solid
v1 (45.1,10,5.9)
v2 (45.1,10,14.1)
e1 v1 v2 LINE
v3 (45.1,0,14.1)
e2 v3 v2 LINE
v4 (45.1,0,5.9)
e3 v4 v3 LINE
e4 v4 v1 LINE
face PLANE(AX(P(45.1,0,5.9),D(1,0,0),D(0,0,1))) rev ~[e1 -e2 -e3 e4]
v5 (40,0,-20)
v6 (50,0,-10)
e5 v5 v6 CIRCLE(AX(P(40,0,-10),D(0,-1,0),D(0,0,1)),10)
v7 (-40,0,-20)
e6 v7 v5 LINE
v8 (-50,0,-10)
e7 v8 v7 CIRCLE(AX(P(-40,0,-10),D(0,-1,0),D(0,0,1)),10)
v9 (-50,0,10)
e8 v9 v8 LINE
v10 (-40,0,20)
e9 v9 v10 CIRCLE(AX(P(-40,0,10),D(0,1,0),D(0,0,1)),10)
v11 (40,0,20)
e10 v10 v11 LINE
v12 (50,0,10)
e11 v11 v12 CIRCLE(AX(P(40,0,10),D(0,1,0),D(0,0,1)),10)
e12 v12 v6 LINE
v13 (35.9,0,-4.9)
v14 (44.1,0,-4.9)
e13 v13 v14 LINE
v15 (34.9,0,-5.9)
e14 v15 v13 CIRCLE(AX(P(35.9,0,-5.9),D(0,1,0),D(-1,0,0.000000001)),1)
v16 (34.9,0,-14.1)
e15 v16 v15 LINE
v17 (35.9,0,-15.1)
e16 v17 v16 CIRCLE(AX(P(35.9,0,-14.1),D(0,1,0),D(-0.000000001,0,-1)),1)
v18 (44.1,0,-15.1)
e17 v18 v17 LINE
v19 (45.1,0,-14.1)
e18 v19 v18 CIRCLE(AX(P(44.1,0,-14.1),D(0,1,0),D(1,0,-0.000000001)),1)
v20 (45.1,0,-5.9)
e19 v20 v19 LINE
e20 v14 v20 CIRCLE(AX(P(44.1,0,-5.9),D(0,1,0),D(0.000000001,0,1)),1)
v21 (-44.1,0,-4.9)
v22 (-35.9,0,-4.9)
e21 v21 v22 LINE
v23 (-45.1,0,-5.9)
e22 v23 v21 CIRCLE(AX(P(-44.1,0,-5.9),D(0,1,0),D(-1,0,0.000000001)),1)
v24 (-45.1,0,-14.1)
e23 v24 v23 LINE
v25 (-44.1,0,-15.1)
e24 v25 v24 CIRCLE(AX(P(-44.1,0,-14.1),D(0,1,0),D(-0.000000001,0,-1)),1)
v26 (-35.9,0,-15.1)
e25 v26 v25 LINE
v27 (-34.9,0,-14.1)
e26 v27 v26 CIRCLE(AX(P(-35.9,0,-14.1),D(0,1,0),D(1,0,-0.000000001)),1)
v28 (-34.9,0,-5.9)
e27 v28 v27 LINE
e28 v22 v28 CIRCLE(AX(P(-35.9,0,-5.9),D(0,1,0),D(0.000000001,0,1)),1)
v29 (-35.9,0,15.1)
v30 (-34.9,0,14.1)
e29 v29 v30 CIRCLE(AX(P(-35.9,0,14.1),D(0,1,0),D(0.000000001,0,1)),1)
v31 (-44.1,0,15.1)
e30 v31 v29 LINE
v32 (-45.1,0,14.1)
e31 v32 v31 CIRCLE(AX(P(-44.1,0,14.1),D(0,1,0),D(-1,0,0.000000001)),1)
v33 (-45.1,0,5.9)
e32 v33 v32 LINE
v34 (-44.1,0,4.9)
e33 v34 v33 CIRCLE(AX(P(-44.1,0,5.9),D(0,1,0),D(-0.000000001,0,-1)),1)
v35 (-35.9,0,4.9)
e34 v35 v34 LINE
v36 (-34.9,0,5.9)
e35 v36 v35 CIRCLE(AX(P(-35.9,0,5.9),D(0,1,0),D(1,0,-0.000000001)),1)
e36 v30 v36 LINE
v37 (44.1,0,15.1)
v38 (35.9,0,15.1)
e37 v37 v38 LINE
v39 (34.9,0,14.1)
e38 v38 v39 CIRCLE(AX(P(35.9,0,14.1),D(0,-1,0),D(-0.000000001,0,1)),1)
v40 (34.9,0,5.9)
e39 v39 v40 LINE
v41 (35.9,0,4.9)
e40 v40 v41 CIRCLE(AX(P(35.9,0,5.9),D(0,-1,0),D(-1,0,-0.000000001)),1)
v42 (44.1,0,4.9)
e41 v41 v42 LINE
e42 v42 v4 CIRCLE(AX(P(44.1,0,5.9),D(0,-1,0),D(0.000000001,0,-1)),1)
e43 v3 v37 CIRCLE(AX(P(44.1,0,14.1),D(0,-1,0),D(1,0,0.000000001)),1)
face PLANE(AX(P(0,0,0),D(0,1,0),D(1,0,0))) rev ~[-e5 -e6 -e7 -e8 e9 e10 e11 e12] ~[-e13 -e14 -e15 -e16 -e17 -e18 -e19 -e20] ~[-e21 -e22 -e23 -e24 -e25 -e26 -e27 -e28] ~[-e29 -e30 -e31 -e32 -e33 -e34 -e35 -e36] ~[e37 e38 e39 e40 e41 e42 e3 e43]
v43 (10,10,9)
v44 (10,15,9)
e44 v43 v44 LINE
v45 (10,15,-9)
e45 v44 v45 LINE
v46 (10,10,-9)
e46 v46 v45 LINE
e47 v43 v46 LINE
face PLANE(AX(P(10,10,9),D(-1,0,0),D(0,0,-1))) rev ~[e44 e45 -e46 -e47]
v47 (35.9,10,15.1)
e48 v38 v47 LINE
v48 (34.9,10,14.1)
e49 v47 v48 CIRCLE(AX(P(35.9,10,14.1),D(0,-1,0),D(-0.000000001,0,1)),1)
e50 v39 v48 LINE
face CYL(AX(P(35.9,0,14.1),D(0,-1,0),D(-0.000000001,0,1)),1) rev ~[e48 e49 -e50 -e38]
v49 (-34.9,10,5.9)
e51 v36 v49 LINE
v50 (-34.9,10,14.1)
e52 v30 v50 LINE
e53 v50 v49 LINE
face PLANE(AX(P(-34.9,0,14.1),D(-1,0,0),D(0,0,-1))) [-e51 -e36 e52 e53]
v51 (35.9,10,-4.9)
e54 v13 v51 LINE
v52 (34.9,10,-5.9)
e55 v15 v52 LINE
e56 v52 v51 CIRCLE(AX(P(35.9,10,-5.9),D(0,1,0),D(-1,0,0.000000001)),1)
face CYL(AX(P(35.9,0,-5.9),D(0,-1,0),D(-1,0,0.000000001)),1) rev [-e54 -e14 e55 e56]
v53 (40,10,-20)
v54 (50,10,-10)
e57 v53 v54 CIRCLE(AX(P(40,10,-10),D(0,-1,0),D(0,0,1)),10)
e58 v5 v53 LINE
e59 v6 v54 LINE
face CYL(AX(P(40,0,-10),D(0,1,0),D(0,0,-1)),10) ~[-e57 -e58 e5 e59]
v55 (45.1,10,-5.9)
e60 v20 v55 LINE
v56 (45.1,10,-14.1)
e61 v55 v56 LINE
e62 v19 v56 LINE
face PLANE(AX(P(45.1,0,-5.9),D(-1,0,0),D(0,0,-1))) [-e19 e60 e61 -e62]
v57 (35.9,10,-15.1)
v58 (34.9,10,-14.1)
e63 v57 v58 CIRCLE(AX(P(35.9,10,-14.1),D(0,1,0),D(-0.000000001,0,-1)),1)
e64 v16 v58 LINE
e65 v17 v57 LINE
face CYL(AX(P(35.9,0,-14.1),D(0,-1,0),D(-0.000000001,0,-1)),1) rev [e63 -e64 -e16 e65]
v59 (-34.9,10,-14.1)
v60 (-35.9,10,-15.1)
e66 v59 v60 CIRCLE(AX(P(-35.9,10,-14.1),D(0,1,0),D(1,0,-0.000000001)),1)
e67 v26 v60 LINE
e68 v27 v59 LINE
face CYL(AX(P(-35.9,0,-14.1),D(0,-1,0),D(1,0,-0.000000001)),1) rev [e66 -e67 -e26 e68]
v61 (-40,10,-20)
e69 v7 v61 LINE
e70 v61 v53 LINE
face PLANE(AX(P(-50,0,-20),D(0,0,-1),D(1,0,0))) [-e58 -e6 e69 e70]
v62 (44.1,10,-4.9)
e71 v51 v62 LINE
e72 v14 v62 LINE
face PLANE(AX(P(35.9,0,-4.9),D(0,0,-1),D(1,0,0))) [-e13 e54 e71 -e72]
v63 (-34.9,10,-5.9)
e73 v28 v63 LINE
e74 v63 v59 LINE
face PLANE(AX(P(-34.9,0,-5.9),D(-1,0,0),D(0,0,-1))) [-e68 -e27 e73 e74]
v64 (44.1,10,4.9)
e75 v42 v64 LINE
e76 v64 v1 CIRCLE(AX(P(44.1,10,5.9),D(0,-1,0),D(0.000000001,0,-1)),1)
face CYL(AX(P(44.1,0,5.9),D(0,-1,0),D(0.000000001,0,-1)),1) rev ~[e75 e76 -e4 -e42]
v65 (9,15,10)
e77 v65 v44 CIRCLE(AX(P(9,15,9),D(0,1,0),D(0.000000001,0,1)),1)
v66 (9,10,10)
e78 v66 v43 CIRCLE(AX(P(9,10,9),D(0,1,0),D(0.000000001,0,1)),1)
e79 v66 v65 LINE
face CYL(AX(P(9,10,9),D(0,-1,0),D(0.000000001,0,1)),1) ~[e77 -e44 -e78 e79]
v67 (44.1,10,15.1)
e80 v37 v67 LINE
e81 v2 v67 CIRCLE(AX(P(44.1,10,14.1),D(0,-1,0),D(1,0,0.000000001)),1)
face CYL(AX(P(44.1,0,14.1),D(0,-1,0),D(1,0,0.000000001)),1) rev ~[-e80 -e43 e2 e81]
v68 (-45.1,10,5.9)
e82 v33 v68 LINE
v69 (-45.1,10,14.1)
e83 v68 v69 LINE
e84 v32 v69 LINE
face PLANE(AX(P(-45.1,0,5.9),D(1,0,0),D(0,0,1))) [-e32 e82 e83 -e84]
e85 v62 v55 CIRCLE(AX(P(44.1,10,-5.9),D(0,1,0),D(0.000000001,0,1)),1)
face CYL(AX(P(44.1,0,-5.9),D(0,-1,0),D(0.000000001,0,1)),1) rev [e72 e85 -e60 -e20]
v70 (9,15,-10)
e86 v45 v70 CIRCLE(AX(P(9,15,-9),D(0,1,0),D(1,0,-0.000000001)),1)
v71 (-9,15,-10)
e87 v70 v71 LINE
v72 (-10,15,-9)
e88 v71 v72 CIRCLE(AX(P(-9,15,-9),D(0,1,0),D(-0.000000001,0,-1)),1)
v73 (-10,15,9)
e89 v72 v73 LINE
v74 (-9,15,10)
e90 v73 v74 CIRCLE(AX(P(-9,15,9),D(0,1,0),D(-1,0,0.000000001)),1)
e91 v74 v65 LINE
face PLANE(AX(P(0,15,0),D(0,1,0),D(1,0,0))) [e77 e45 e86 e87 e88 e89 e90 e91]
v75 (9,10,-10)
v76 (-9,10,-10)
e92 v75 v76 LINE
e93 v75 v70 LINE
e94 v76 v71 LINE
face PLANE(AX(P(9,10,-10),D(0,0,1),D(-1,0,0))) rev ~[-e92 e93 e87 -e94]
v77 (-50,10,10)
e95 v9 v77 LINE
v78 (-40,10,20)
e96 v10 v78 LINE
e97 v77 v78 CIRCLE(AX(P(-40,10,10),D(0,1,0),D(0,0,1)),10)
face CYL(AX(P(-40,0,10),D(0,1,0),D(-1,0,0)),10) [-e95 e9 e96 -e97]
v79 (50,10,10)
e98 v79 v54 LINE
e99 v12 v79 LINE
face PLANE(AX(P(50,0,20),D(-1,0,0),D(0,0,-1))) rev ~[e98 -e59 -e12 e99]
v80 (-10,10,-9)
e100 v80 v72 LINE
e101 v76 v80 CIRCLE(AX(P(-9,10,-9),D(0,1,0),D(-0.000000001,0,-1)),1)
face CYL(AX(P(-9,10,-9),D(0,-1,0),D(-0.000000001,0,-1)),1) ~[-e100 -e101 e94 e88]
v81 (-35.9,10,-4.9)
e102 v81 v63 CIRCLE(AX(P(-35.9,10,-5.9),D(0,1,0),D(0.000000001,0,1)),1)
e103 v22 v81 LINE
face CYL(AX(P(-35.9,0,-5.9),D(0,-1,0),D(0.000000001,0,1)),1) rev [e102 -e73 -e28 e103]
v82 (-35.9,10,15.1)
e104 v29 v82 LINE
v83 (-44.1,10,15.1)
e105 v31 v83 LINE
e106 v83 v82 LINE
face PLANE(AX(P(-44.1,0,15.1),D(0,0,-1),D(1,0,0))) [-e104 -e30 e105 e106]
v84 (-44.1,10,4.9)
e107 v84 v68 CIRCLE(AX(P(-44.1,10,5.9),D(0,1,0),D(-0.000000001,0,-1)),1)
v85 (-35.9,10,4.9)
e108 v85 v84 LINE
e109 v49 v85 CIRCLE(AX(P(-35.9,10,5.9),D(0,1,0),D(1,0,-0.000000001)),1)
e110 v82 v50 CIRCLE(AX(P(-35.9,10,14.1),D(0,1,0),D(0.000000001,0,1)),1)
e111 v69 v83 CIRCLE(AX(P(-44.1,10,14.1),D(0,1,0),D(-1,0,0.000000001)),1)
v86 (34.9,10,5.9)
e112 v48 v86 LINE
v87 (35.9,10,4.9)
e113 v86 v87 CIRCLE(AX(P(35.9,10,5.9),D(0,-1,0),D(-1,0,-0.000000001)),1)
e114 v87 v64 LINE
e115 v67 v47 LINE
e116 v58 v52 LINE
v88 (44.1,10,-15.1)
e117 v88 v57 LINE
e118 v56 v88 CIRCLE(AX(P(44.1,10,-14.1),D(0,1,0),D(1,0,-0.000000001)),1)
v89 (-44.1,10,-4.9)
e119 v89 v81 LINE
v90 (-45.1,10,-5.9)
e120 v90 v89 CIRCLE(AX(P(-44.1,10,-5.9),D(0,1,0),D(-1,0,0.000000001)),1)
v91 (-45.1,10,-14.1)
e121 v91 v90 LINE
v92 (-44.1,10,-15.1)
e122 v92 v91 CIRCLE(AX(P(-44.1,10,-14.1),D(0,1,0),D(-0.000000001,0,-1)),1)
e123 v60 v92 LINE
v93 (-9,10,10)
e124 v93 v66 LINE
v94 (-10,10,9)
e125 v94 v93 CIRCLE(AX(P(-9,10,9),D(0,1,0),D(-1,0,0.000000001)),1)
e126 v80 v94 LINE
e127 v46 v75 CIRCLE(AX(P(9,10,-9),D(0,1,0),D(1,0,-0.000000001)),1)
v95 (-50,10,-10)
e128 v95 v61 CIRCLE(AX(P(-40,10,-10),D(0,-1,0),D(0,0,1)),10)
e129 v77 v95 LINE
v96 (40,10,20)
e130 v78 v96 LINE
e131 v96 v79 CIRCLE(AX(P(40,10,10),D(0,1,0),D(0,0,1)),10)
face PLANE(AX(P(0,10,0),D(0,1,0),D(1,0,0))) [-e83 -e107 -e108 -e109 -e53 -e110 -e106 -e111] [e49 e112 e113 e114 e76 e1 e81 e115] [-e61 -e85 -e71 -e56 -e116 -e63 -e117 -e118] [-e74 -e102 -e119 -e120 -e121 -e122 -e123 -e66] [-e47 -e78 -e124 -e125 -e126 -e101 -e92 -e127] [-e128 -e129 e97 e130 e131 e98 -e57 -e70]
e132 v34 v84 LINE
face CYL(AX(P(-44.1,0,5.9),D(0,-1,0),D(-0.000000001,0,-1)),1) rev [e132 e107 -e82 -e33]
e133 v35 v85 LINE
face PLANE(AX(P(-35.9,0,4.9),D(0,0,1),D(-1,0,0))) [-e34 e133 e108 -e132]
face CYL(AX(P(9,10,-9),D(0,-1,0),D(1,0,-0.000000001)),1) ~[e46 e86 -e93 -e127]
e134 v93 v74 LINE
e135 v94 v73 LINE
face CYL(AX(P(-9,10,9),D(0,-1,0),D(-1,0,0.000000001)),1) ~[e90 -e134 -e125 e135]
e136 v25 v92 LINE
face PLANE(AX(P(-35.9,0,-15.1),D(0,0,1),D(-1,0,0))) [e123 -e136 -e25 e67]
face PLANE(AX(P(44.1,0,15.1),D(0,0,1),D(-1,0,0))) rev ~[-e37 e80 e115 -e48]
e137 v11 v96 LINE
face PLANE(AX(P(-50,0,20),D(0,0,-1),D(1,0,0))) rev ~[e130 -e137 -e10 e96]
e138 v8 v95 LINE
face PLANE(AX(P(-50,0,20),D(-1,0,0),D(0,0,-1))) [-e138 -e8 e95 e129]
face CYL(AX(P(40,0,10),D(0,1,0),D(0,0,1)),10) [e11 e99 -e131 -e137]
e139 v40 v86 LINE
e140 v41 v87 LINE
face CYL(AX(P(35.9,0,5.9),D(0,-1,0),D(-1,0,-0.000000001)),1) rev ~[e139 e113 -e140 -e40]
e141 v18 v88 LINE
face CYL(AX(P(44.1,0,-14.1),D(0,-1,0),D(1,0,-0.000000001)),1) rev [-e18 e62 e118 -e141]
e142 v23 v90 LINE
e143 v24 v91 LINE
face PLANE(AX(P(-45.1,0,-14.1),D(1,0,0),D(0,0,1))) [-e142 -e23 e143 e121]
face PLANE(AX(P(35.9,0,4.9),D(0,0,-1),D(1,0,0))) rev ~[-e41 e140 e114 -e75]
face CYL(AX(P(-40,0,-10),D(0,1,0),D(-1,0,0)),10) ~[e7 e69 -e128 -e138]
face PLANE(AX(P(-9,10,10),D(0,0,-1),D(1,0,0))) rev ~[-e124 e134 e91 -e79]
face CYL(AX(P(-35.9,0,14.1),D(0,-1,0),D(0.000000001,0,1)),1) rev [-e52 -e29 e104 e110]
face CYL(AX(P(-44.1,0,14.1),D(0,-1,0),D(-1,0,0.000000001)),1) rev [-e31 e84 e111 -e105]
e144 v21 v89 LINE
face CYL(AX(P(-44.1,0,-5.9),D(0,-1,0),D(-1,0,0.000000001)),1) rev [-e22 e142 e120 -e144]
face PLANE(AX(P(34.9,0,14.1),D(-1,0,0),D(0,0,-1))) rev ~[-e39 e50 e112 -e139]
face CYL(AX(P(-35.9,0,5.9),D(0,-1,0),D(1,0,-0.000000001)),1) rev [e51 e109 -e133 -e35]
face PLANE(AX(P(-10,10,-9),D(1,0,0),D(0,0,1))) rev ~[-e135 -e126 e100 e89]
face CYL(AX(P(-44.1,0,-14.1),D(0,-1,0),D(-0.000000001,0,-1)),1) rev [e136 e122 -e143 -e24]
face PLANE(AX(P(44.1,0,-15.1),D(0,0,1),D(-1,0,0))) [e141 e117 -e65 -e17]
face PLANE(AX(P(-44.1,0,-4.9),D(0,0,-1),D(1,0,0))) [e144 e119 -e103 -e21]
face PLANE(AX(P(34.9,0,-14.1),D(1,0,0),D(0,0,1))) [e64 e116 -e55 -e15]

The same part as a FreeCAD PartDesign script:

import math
import FreeCAD as App
import Part
import Sketcher
Q = App.Units.Quantity


def edges_at(feature, points):
    """Names of the edges that pass closest to the given points."""
    edges = feature.Shape.Edges
    near = lambda p: min(range(len(edges)), key=lambda i: edges[i].distToShape(Part.Vertex(*p))[0])
    return sorted({f"Edge{near(p) + 1}" for p in points})

doc = App.newDocument("Part")
body = doc.addObject("PartDesign::Body", "Body")

# Sketch on XZ plane
sketch1 = body.newObject("Sketcher::SketchObject", "Sketch")
sketch1.AttachmentSupport = (doc.getObject("XZ_Plane"), [""])
sketch1.MapMode = "FlatFace"
sketch1.addGeometry([
    Part.LineSegment(App.Vector(-50, -20, 0), App.Vector(-50, 20, 0)),  # 0
    Part.LineSegment(App.Vector(-50, 20, 0), App.Vector(50, 20, 0)),  # 1
    Part.LineSegment(App.Vector(50, 20, 0), App.Vector(50, -20, 0)),  # 2
    Part.LineSegment(App.Vector(50, -20, 0), App.Vector(-50, -20, 0)),  # 3
    Part.LineSegment(App.Vector(-35.9, 15.1, 0), App.Vector(-44.1, 15.1, 0)),  # 4
    Part.ArcOfCircle(Part.Circle(App.Vector(-44.1, 14.1, 0), App.Vector(0, 0, 1), 1), math.radians(90), math.radians(180)),  # 5
    Part.LineSegment(App.Vector(-45.1, 14.1, 0), App.Vector(-45.1, 5.9, 0)),  # 6
    Part.ArcOfCircle(Part.Circle(App.Vector(-44.1, 5.9, 0), App.Vector(0, 0, 1), 1), math.radians(-180), math.radians(-90)),  # 7
    Part.LineSegment(App.Vector(-44.1, 4.9, 0), App.Vector(-35.9, 4.9, 0)),  # 8
    Part.ArcOfCircle(Part.Circle(App.Vector(-35.9, 5.9, 0), App.Vector(0, 0, 1), 1), math.radians(-90), math.radians(0)),  # 9
    Part.LineSegment(App.Vector(-34.9, 5.9, 0), App.Vector(-34.9, 14.1, 0)),  # 10
    Part.ArcOfCircle(Part.Circle(App.Vector(-35.9, 14.1, 0), App.Vector(0, 0, 1), 1), math.radians(0), math.radians(90)),  # 11
    Part.ArcOfCircle(Part.Circle(App.Vector(44.1, 5.9, 0), App.Vector(0, 0, 1), 1), math.radians(-90), math.radians(0)),  # 12
    Part.LineSegment(App.Vector(45.1, 5.9, 0), App.Vector(45.1, 14.1, 0)),  # 13
    Part.ArcOfCircle(Part.Circle(App.Vector(44.1, 14.1, 0), App.Vector(0, 0, 1), 1), math.radians(0), math.radians(90)),  # 14
    Part.LineSegment(App.Vector(44.1, 15.1, 0), App.Vector(35.9, 15.1, 0)),  # 15
    Part.ArcOfCircle(Part.Circle(App.Vector(35.9, 14.1, 0), App.Vector(0, 0, 1), 1), math.radians(90), math.radians(180)),  # 16
    Part.LineSegment(App.Vector(34.9, 14.1, 0), App.Vector(34.9, 5.9, 0)),  # 17
    Part.ArcOfCircle(Part.Circle(App.Vector(35.9, 5.9, 0), App.Vector(0, 0, 1), 1), math.radians(-180), math.radians(-90)),  # 18
    Part.LineSegment(App.Vector(35.9, 4.9, 0), App.Vector(44.1, 4.9, 0)),  # 19
    Part.LineSegment(App.Vector(-35.9, -4.9, 0), App.Vector(-44.1, -4.9, 0)),  # 20
    Part.ArcOfCircle(Part.Circle(App.Vector(-44.1, -5.9, 0), App.Vector(0, 0, 1), 1), math.radians(90), math.radians(180)),  # 21
    Part.LineSegment(App.Vector(-45.1, -5.9, 0), App.Vector(-45.1, -14.1, 0)),  # 22
    Part.ArcOfCircle(Part.Circle(App.Vector(-44.1, -14.1, 0), App.Vector(0, 0, 1), 1), math.radians(-180), math.radians(-90)),  # 23
    Part.LineSegment(App.Vector(-44.1, -15.1, 0), App.Vector(-35.9, -15.1, 0)),  # 24
    Part.ArcOfCircle(Part.Circle(App.Vector(-35.9, -14.1, 0), App.Vector(0, 0, 1), 1), math.radians(-90), math.radians(0)),  # 25
    Part.LineSegment(App.Vector(-34.9, -14.1, 0), App.Vector(-34.9, -5.9, 0)),  # 26
    Part.ArcOfCircle(Part.Circle(App.Vector(-35.9, -5.9, 0), App.Vector(0, 0, 1), 1), math.radians(0), math.radians(90)),  # 27
    Part.LineSegment(App.Vector(35.9, -15.1, 0), App.Vector(44.1, -15.1, 0)),  # 28
    Part.ArcOfCircle(Part.Circle(App.Vector(44.1, -14.1, 0), App.Vector(0, 0, 1), 1), math.radians(-90), math.radians(0)),  # 29
    Part.LineSegment(App.Vector(45.1, -14.1, 0), App.Vector(45.1, -5.9, 0)),  # 30
    Part.ArcOfCircle(Part.Circle(App.Vector(44.1, -5.9, 0), App.Vector(0, 0, 1), 1), math.radians(0), math.radians(90)),  # 31
    Part.LineSegment(App.Vector(44.1, -4.9, 0), App.Vector(35.9, -4.9, 0)),  # 32
    Part.ArcOfCircle(Part.Circle(App.Vector(35.9, -5.9, 0), App.Vector(0, 0, 1), 1), math.radians(90), math.radians(180)),  # 33
    Part.LineSegment(App.Vector(34.9, -5.9, 0), App.Vector(34.9, -14.1, 0)),  # 34
    Part.ArcOfCircle(Part.Circle(App.Vector(35.9, -14.1, 0), App.Vector(0, 0, 1), 1), math.radians(-180), math.radians(-90)),  # 35
], False)
sketch1.addConstraint([
    Sketcher.Constraint("Coincident", 0, 2, 1, 1),
    Sketcher.Constraint("Coincident", 1, 2, 2, 1),
    Sketcher.Constraint("Coincident", 2, 2, 3, 1),
    Sketcher.Constraint("Coincident", 3, 2, 0, 1),
    Sketcher.Constraint("Tangent", 4, 2, 5, 1),
    Sketcher.Constraint("Tangent", 5, 2, 6, 1),
    Sketcher.Constraint("Tangent", 6, 2, 7, 1),
    Sketcher.Constraint("Tangent", 7, 2, 8, 1),
    Sketcher.Constraint("Tangent", 8, 2, 9, 1),
    Sketcher.Constraint("Tangent", 9, 2, 10, 1),
    Sketcher.Constraint("Tangent", 10, 2, 11, 1),
    Sketcher.Constraint("Tangent", 11, 2, 4, 1),
    Sketcher.Constraint("Tangent", 12, 2, 13, 1),
    Sketcher.Constraint("Tangent", 13, 2, 14, 1),
    Sketcher.Constraint("Tangent", 14, 2, 15, 1),
    Sketcher.Constraint("Tangent", 15, 2, 16, 1),
    Sketcher.Constraint("Tangent", 16, 2, 17, 1),
    Sketcher.Constraint("Tangent", 17, 2, 18, 1),
    Sketcher.Constraint("Tangent", 18, 2, 19, 1),
    Sketcher.Constraint("Tangent", 19, 2, 12, 1),
    Sketcher.Constraint("Tangent", 20, 2, 21, 1),
    Sketcher.Constraint("Tangent", 21, 2, 22, 1),
    Sketcher.Constraint("Tangent", 22, 2, 23, 1),
    Sketcher.Constraint("Tangent", 23, 2, 24, 1),
    Sketcher.Constraint("Tangent", 24, 2, 25, 1),
    Sketcher.Constraint("Tangent", 25, 2, 26, 1),
    Sketcher.Constraint("Tangent", 26, 2, 27, 1),
    Sketcher.Constraint("Tangent", 27, 2, 20, 1),
    Sketcher.Constraint("Tangent", 28, 2, 29, 1),
    Sketcher.Constraint("Tangent", 29, 2, 30, 1),
    Sketcher.Constraint("Tangent", 30, 2, 31, 1),
    Sketcher.Constraint("Tangent", 31, 2, 32, 1),
    Sketcher.Constraint("Tangent", 32, 2, 33, 1),
    Sketcher.Constraint("Tangent", 33, 2, 34, 1),
    Sketcher.Constraint("Tangent", 34, 2, 35, 1),
    Sketcher.Constraint("Tangent", 35, 2, 28, 1),
    Sketcher.Constraint("Vertical", 0),
    Sketcher.Constraint("Horizontal", 1),
    Sketcher.Constraint("Vertical", 2),
    Sketcher.Constraint("Horizontal", 3),
    Sketcher.Constraint("Horizontal", 4),
    Sketcher.Constraint("Vertical", 6),
    Sketcher.Constraint("Horizontal", 8),
    Sketcher.Constraint("Vertical", 10),
    Sketcher.Constraint("Vertical", 13),
    Sketcher.Constraint("Horizontal", 15),
    Sketcher.Constraint("Vertical", 17),
    Sketcher.Constraint("Horizontal", 19),
    Sketcher.Constraint("Horizontal", 20),
    Sketcher.Constraint("Vertical", 22),
    Sketcher.Constraint("Horizontal", 24),
    Sketcher.Constraint("Vertical", 26),
    Sketcher.Constraint("Horizontal", 28),
    Sketcher.Constraint("Vertical", 30),
    Sketcher.Constraint("Horizontal", 32),
    Sketcher.Constraint("Vertical", 34),
    Sketcher.Constraint("Equal", 5, 7),
    Sketcher.Constraint("Equal", 7, 9),
    Sketcher.Constraint("Equal", 9, 11),
    Sketcher.Constraint("Equal", 11, 12),
    Sketcher.Constraint("Equal", 12, 14),
    Sketcher.Constraint("Equal", 14, 16),
    Sketcher.Constraint("Equal", 16, 18),
    Sketcher.Constraint("Equal", 18, 21),
    Sketcher.Constraint("Equal", 21, 23),
    Sketcher.Constraint("Equal", 23, 25),
    Sketcher.Constraint("Equal", 25, 27),
    Sketcher.Constraint("Equal", 27, 29),
    Sketcher.Constraint("Equal", 29, 31),
    Sketcher.Constraint("Equal", 31, 33),
    Sketcher.Constraint("Equal", 33, 35),
    Sketcher.Constraint("Symmetric", 12, 3, 21, 3, -1, 1),
    Sketcher.Constraint("Symmetric", 16, 3, 25, 3, -1, 1),
    Sketcher.Constraint("Symmetric", 5, 3, 29, 3, -1, 1),
    Sketcher.Constraint("Symmetric", 9, 3, 33, 3, -1, 1),
    Sketcher.Constraint("Symmetric", 0, 2, 2, 2, -1, 1),
    Sketcher.Constraint("Symmetric", 7, 3, 12, 3, -2),
    Sketcher.Constraint("Symmetric", 11, 3, 16, 3, -2),
    Sketcher.Constraint("Equal", 32, 6),
    Sketcher.Constraint("Radius", 5, Q("1 mm")),
    Sketcher.Constraint("DistanceX", 1, 1, 1, 2, Q("100 mm")),
    Sketcher.Constraint("DistanceY", 0, 1, 0, 2, Q("40 mm")),
    Sketcher.Constraint("DistanceX", 4, 2, 4, 1, Q("8.2 mm")),
    Sketcher.Constraint("DistanceX", 9, 3, 12, 3, Q("80 mm")),
    Sketcher.Constraint("DistanceY", 21, 3, 5, 3, Q("20 mm")),
])
pad1 = body.newObject("PartDesign::Pad", "Pad")
pad1.Profile = sketch1
pad1.Length = 10
pad1.Reversed = True
doc.recompute()

fillet = body.newObject("PartDesign::Fillet", "Fillet")
fillet.Base = (pad1, edges_at(pad1, [
    (50, 5, 20),
    (-50, 5, 20),
    (-50, 5, -20),
    (50, 5, -20),
]))
fillet.Radius = 10

# Sketch on XZ plane
sketch2 = body.newObject("Sketcher::SketchObject", "Sketch001")
sketch2.AttachmentSupport = (doc.getObject("XZ_Plane"), [""])
sketch2.MapMode = "FlatFace"
sketch2.AttachmentOffset = App.Placement(App.Vector(0, 0, -10), App.Rotation())
sketch2.addGeometry([
    Part.LineSegment(App.Vector(-9, 10, 0), App.Vector(9, 10, 0)),  # 0
    Part.ArcOfCircle(Part.Circle(App.Vector(9, 9, 0), App.Vector(0, 0, 1), 1), math.radians(0), math.radians(90)),  # 1
    Part.LineSegment(App.Vector(10, 9, 0), App.Vector(10, -9, 0)),  # 2
    Part.ArcOfCircle(Part.Circle(App.Vector(9, -9, 0), App.Vector(0, 0, 1), 1), math.radians(-90), math.radians(0)),  # 3
    Part.LineSegment(App.Vector(9, -10, 0), App.Vector(-9, -10, 0)),  # 4
    Part.ArcOfCircle(Part.Circle(App.Vector(-9, -9, 0), App.Vector(0, 0, 1), 1), math.radians(-180), math.radians(-90)),  # 5
    Part.LineSegment(App.Vector(-10, -9, 0), App.Vector(-10, 9, 0)),  # 6
    Part.ArcOfCircle(Part.Circle(App.Vector(-9, 9, 0), App.Vector(0, 0, 1), 1), math.radians(90), math.radians(180)),  # 7
], False)
sketch2.addConstraint([
    Sketcher.Constraint("Tangent", 0, 2, 1, 2),
    Sketcher.Constraint("Tangent", 1, 1, 2, 1),
    Sketcher.Constraint("Tangent", 2, 2, 3, 2),
    Sketcher.Constraint("Tangent", 3, 1, 4, 1),
    Sketcher.Constraint("Tangent", 4, 2, 5, 2),
    Sketcher.Constraint("Tangent", 5, 1, 6, 1),
    Sketcher.Constraint("Tangent", 6, 2, 7, 2),
    Sketcher.Constraint("Tangent", 7, 1, 0, 1),
    Sketcher.Constraint("Horizontal", 0),
    Sketcher.Constraint("Vertical", 2),
    Sketcher.Constraint("Horizontal", 4),
    Sketcher.Constraint("Vertical", 6),
    Sketcher.Constraint("Equal", 1, 3),
    Sketcher.Constraint("Equal", 3, 5),
    Sketcher.Constraint("Equal", 5, 7),
    Sketcher.Constraint("Symmetric", 1, 3, 5, 3, -1, 1),
    Sketcher.Constraint("Equal", 4, 2),
    Sketcher.Constraint("Radius", 1, Q("1 mm")),
    Sketcher.Constraint("DistanceX", 0, 1, 0, 2, Q("18 mm")),
])
pad2 = body.newObject("PartDesign::Pad", "Pad001")
pad2.Profile = sketch2
pad2.Length = 5
pad2.Reversed = True

doc.recompute()
